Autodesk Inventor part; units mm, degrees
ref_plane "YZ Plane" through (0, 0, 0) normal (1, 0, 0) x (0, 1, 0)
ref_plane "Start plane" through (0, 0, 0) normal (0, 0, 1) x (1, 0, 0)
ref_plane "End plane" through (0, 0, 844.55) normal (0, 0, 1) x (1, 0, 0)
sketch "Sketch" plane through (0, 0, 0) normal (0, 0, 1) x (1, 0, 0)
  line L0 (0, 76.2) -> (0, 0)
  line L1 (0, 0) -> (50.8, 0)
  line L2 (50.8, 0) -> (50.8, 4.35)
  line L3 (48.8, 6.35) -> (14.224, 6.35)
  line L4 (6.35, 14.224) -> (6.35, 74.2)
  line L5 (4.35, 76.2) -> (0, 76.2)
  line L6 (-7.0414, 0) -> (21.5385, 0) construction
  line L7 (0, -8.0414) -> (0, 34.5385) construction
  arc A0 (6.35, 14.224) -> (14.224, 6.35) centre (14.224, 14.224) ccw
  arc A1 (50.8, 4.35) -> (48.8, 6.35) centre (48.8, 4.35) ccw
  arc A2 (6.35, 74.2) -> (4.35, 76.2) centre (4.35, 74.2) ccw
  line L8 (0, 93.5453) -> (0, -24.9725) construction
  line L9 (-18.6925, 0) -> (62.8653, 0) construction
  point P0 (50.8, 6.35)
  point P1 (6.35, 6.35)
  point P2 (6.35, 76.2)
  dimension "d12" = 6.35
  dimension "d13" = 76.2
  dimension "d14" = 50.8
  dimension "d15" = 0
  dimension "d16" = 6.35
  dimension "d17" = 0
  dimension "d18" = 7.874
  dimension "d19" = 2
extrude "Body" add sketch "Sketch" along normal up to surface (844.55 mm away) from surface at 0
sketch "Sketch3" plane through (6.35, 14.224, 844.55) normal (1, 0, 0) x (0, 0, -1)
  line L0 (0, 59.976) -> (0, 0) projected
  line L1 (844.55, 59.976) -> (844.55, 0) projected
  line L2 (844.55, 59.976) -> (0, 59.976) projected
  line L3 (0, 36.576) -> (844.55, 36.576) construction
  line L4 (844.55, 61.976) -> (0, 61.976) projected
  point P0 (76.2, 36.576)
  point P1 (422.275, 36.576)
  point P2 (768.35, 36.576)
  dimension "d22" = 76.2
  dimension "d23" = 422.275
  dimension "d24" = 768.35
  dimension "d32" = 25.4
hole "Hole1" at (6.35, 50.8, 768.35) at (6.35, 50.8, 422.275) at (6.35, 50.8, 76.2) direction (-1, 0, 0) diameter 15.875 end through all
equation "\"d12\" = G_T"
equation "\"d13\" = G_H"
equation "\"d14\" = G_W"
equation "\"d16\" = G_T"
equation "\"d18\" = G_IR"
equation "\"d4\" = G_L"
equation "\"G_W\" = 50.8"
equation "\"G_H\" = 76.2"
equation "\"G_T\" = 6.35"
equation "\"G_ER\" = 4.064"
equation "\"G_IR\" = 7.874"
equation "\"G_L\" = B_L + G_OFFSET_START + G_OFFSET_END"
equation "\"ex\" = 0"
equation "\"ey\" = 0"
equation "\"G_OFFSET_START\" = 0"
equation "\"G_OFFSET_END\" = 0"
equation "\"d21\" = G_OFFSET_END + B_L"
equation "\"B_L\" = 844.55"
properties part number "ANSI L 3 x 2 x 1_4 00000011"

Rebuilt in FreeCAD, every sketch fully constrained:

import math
import FreeCAD as App
import Part
import Sketcher

V = App.Vector
Q = App.Units.Quantity

doc = App.newDocument("Part")
body = doc.addObject("PartDesign::Body", "Body")

sketch1 = doc.addObject("Sketcher::SketchObject", "Sketch")
body.addObject(sketch1)
sketch1.AttachmentSupport = (doc.XY_Plane, [""])
sketch1.MapMode = "FlatFace"
sketch1.addGeometry([
    Part.LineSegment(V(4.3, 76.2, 0), V(0, 76.2, 0)),
    Part.LineSegment(V(0, 76.2, 0), V(0, 0, 0)),
    Part.LineSegment(V(0, 0, 0), V(50.8, 0, 0)),
    Part.LineSegment(V(50.8, 0, 0), V(50.8, 4.3, 0)),
    Part.ArcOfCircle(Part.Circle(V(48.8, 4.3, 0), V(0, 0, 1), 2), math.radians(0), math.radians(90)),
    Part.LineSegment(V(48.8, 6.3, 0), V(14.2, 6.3, 0)),
    Part.ArcOfCircle(Part.Circle(V(14.2, 14.2, 0), V(0, 0, 1), 7.9), math.radians(180), math.radians(270)),
    Part.LineSegment(V(6.3, 14.2, 0), V(6.3, 74.2, 0)),
    Part.ArcOfCircle(Part.Circle(V(4.3, 74.2, 0), V(0, 0, 1), 2), math.radians(0), math.radians(90)),
], False)
sketch1.addConstraint([
    Sketcher.Constraint("Coincident", 0, 2, 1, 1),
    Sketcher.Constraint("Coincident", 1, 2, 2, 1),
    Sketcher.Constraint("Coincident", 2, 2, 3, 1),
    Sketcher.Constraint("Tangent", 3, 2, 4, 1),
    Sketcher.Constraint("Tangent", 4, 2, 5, 1),
    Sketcher.Constraint("Tangent", 5, 2, 6, 2),
    Sketcher.Constraint("Tangent", 6, 1, 7, 1),
    Sketcher.Constraint("Tangent", 7, 2, 8, 1),
    Sketcher.Constraint("Tangent", 8, 2, 0, 1),
    Sketcher.Constraint("Horizontal", 0),
    Sketcher.Constraint("Vertical", 1),
    Sketcher.Constraint("Horizontal", 2),
    Sketcher.Constraint("Vertical", 3),
    Sketcher.Constraint("Horizontal", 5),
    Sketcher.Constraint("Vertical", 7),
    Sketcher.Constraint("Coincident", 1, 2, -1, 1),
    Sketcher.Constraint("Equal", 4, 8),
    Sketcher.Constraint("Equal", 0, 3),
    Sketcher.Constraint("DistanceX", 2, 1, 2, 2, Q("2 in")),
    Sketcher.Constraint("DistanceY", 1, 2, 1, 1, Q("3 in")),
    Sketcher.Constraint("Radius", 6, Q("0.31 in")),
    Sketcher.Constraint("DistanceY", -1, 1, 4, 2, Q("0.25 in")),
    Sketcher.Constraint("Radius", 4, 2.0),
])
pad1 = doc.addObject("PartDesign::Pad", "Pad")
body.addObject(pad1)
pad1.Profile = sketch1
pad1.Length = Q("33.25 in")

sketch2 = doc.addObject("Sketcher::SketchObject", "Sketch001")
body.addObject(sketch2)
sketch2.AttachmentSupport = (doc.YZ_Plane, [""])
sketch2.MapMode = "FlatFace"
sketch2.AttachmentOffset = App.Placement(V(0, 0, 0.25 * 25.4), App.Rotation())
sketch2.addGeometry([
    Part.Circle(V(51, 768, 0), V(0, 0, 1), 8),
    Part.Circle(V(51, 422, 0), V(0, 0, 1), 8),
    Part.Circle(V(51, 76, 0), V(0, 0, 1), 8),
], False)
sketch2.addConstraint([
    Sketcher.Constraint("Equal", 0, 1),
    Sketcher.Constraint("Equal", 1, 2),
    Sketcher.Constraint("Vertical", 0, 3, 1, 3),
    Sketcher.Constraint("Vertical", 1, 3, 2, 3),
    Sketcher.Constraint("Diameter", 0, Q("0.625 in")),
    Sketcher.Constraint("DistanceX", -1, 1, 0, 3, Q("2 in")),
    Sketcher.Constraint("DistanceY", -1, 1, 2, 3, Q("3 in")),
    Sketcher.Constraint("DistanceY", -1, 1, 0, 3, Q("30.25 in")),
    Sketcher.Constraint("DistanceY", -1, 1, 1, 3, Q("16.625 in")),
])
doc.recompute()
hole = doc.addObject("PartDesign::Hole", "Hole")
body.addObject(hole)
hole.Profile = sketch2
hole.ThreadType = "None"
hole.Diameter = Q("0.625 in")
hole.DepthType = "ThroughAll"

doc.recompute()
